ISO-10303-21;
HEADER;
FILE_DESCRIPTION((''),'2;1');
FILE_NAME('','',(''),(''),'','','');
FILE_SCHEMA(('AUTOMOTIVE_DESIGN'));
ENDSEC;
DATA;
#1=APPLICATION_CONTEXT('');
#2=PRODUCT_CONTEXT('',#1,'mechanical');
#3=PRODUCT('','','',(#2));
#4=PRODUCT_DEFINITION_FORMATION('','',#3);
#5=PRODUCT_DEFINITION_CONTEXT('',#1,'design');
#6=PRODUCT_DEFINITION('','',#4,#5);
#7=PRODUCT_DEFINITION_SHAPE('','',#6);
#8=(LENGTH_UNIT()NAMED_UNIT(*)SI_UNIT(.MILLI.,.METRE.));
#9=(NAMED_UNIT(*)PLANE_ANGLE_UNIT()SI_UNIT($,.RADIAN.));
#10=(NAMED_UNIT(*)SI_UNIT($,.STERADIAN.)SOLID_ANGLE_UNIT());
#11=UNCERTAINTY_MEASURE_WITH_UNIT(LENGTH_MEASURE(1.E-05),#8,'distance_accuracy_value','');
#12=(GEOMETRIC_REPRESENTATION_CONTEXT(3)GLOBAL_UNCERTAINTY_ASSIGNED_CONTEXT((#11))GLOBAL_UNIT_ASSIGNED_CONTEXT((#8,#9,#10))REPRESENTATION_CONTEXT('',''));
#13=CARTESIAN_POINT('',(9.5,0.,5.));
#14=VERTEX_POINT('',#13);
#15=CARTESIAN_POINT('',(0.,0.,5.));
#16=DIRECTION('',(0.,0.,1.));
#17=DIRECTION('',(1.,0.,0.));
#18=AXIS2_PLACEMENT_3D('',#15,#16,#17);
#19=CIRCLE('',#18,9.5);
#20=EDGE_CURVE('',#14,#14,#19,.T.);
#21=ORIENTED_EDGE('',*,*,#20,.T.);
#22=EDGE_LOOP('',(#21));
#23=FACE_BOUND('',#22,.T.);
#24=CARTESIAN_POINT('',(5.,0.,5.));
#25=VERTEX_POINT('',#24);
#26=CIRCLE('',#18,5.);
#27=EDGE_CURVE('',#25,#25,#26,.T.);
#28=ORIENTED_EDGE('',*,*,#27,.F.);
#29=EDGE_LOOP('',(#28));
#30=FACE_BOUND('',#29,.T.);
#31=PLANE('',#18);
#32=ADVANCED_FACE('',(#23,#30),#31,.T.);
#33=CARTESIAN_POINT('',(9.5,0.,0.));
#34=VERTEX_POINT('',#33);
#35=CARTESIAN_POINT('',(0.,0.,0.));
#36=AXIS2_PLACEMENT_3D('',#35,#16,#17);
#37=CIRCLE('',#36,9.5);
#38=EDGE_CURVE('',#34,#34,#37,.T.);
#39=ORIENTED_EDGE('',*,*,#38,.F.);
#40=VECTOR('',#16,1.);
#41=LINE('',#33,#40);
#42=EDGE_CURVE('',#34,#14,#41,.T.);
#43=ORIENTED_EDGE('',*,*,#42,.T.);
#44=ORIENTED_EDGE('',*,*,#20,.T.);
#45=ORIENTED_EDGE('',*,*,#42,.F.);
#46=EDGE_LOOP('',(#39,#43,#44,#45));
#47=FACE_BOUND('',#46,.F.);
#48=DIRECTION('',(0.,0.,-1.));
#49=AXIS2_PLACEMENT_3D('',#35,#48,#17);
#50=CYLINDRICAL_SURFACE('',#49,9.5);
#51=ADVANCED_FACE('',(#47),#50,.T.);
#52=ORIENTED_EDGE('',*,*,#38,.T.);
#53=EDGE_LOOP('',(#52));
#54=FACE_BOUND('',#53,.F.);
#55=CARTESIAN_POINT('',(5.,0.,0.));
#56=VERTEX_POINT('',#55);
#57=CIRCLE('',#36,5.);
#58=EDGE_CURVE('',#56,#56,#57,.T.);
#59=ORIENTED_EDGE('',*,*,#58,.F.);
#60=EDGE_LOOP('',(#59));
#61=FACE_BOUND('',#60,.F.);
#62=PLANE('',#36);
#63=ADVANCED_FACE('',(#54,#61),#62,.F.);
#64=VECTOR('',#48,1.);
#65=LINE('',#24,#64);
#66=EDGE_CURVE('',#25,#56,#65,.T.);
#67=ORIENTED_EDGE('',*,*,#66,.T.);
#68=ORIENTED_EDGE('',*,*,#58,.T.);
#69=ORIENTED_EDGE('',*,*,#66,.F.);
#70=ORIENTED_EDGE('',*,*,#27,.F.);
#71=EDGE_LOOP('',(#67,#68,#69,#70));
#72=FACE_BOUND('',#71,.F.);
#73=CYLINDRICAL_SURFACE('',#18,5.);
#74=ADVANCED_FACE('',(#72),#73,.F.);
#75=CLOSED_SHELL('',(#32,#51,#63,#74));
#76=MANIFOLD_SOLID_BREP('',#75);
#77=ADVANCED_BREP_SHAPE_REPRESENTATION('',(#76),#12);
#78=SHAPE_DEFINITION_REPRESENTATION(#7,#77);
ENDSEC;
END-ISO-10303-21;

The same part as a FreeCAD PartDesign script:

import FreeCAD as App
import Part
import Sketcher

V = App.Vector

doc = App.newDocument("Part")
body = doc.addObject("PartDesign::Body", "Body")

# Sketch on XY plane
sketch1 = doc.addObject("Sketcher::SketchObject", "Sketch")
body.addObject(sketch1)
sketch1.AttachmentSupport = (doc.XY_Plane, [""])
sketch1.MapMode = "FlatFace"
sketch1.addGeometry(Part.Circle(V(0, 0, 0), V(0, 0, 1), 10), False)
sketch1.addConstraint(Sketcher.Constraint("Coincident", 0, 3, -1, 1))
sketch1.addConstraint(Sketcher.Constraint("Diameter", 0, 19.0))
pad1 = doc.addObject("PartDesign::Pad", "Pad")
body.addObject(pad1)
pad1.Profile = sketch1
pad1.Length = 5

# Sketch on XY plane
sketch2 = doc.addObject("Sketcher::SketchObject", "Sketch001")
body.addObject(sketch2)
sketch2.AttachmentSupport = (doc.XY_Plane, [""])
sketch2.MapMode = "FlatFace"
sketch2.AttachmentOffset = App.Placement(V(0, 0, 5), App.Rotation())
sketch2.addGeometry(Part.Circle(V(0, 0, 0), V(0, 0, 1), 5), False)
sketch2.addConstraint(Sketcher.Constraint("Coincident", 0, 3, -1, 1))
sketch2.addConstraint(Sketcher.Constraint("Diameter", 0, 10.0))
pocket1 = doc.addObject("PartDesign::Pocket", "Pocket")
body.addObject(pocket1)
pocket1.Profile = sketch2
pocket1.Length = 6.35

doc.recompute()
